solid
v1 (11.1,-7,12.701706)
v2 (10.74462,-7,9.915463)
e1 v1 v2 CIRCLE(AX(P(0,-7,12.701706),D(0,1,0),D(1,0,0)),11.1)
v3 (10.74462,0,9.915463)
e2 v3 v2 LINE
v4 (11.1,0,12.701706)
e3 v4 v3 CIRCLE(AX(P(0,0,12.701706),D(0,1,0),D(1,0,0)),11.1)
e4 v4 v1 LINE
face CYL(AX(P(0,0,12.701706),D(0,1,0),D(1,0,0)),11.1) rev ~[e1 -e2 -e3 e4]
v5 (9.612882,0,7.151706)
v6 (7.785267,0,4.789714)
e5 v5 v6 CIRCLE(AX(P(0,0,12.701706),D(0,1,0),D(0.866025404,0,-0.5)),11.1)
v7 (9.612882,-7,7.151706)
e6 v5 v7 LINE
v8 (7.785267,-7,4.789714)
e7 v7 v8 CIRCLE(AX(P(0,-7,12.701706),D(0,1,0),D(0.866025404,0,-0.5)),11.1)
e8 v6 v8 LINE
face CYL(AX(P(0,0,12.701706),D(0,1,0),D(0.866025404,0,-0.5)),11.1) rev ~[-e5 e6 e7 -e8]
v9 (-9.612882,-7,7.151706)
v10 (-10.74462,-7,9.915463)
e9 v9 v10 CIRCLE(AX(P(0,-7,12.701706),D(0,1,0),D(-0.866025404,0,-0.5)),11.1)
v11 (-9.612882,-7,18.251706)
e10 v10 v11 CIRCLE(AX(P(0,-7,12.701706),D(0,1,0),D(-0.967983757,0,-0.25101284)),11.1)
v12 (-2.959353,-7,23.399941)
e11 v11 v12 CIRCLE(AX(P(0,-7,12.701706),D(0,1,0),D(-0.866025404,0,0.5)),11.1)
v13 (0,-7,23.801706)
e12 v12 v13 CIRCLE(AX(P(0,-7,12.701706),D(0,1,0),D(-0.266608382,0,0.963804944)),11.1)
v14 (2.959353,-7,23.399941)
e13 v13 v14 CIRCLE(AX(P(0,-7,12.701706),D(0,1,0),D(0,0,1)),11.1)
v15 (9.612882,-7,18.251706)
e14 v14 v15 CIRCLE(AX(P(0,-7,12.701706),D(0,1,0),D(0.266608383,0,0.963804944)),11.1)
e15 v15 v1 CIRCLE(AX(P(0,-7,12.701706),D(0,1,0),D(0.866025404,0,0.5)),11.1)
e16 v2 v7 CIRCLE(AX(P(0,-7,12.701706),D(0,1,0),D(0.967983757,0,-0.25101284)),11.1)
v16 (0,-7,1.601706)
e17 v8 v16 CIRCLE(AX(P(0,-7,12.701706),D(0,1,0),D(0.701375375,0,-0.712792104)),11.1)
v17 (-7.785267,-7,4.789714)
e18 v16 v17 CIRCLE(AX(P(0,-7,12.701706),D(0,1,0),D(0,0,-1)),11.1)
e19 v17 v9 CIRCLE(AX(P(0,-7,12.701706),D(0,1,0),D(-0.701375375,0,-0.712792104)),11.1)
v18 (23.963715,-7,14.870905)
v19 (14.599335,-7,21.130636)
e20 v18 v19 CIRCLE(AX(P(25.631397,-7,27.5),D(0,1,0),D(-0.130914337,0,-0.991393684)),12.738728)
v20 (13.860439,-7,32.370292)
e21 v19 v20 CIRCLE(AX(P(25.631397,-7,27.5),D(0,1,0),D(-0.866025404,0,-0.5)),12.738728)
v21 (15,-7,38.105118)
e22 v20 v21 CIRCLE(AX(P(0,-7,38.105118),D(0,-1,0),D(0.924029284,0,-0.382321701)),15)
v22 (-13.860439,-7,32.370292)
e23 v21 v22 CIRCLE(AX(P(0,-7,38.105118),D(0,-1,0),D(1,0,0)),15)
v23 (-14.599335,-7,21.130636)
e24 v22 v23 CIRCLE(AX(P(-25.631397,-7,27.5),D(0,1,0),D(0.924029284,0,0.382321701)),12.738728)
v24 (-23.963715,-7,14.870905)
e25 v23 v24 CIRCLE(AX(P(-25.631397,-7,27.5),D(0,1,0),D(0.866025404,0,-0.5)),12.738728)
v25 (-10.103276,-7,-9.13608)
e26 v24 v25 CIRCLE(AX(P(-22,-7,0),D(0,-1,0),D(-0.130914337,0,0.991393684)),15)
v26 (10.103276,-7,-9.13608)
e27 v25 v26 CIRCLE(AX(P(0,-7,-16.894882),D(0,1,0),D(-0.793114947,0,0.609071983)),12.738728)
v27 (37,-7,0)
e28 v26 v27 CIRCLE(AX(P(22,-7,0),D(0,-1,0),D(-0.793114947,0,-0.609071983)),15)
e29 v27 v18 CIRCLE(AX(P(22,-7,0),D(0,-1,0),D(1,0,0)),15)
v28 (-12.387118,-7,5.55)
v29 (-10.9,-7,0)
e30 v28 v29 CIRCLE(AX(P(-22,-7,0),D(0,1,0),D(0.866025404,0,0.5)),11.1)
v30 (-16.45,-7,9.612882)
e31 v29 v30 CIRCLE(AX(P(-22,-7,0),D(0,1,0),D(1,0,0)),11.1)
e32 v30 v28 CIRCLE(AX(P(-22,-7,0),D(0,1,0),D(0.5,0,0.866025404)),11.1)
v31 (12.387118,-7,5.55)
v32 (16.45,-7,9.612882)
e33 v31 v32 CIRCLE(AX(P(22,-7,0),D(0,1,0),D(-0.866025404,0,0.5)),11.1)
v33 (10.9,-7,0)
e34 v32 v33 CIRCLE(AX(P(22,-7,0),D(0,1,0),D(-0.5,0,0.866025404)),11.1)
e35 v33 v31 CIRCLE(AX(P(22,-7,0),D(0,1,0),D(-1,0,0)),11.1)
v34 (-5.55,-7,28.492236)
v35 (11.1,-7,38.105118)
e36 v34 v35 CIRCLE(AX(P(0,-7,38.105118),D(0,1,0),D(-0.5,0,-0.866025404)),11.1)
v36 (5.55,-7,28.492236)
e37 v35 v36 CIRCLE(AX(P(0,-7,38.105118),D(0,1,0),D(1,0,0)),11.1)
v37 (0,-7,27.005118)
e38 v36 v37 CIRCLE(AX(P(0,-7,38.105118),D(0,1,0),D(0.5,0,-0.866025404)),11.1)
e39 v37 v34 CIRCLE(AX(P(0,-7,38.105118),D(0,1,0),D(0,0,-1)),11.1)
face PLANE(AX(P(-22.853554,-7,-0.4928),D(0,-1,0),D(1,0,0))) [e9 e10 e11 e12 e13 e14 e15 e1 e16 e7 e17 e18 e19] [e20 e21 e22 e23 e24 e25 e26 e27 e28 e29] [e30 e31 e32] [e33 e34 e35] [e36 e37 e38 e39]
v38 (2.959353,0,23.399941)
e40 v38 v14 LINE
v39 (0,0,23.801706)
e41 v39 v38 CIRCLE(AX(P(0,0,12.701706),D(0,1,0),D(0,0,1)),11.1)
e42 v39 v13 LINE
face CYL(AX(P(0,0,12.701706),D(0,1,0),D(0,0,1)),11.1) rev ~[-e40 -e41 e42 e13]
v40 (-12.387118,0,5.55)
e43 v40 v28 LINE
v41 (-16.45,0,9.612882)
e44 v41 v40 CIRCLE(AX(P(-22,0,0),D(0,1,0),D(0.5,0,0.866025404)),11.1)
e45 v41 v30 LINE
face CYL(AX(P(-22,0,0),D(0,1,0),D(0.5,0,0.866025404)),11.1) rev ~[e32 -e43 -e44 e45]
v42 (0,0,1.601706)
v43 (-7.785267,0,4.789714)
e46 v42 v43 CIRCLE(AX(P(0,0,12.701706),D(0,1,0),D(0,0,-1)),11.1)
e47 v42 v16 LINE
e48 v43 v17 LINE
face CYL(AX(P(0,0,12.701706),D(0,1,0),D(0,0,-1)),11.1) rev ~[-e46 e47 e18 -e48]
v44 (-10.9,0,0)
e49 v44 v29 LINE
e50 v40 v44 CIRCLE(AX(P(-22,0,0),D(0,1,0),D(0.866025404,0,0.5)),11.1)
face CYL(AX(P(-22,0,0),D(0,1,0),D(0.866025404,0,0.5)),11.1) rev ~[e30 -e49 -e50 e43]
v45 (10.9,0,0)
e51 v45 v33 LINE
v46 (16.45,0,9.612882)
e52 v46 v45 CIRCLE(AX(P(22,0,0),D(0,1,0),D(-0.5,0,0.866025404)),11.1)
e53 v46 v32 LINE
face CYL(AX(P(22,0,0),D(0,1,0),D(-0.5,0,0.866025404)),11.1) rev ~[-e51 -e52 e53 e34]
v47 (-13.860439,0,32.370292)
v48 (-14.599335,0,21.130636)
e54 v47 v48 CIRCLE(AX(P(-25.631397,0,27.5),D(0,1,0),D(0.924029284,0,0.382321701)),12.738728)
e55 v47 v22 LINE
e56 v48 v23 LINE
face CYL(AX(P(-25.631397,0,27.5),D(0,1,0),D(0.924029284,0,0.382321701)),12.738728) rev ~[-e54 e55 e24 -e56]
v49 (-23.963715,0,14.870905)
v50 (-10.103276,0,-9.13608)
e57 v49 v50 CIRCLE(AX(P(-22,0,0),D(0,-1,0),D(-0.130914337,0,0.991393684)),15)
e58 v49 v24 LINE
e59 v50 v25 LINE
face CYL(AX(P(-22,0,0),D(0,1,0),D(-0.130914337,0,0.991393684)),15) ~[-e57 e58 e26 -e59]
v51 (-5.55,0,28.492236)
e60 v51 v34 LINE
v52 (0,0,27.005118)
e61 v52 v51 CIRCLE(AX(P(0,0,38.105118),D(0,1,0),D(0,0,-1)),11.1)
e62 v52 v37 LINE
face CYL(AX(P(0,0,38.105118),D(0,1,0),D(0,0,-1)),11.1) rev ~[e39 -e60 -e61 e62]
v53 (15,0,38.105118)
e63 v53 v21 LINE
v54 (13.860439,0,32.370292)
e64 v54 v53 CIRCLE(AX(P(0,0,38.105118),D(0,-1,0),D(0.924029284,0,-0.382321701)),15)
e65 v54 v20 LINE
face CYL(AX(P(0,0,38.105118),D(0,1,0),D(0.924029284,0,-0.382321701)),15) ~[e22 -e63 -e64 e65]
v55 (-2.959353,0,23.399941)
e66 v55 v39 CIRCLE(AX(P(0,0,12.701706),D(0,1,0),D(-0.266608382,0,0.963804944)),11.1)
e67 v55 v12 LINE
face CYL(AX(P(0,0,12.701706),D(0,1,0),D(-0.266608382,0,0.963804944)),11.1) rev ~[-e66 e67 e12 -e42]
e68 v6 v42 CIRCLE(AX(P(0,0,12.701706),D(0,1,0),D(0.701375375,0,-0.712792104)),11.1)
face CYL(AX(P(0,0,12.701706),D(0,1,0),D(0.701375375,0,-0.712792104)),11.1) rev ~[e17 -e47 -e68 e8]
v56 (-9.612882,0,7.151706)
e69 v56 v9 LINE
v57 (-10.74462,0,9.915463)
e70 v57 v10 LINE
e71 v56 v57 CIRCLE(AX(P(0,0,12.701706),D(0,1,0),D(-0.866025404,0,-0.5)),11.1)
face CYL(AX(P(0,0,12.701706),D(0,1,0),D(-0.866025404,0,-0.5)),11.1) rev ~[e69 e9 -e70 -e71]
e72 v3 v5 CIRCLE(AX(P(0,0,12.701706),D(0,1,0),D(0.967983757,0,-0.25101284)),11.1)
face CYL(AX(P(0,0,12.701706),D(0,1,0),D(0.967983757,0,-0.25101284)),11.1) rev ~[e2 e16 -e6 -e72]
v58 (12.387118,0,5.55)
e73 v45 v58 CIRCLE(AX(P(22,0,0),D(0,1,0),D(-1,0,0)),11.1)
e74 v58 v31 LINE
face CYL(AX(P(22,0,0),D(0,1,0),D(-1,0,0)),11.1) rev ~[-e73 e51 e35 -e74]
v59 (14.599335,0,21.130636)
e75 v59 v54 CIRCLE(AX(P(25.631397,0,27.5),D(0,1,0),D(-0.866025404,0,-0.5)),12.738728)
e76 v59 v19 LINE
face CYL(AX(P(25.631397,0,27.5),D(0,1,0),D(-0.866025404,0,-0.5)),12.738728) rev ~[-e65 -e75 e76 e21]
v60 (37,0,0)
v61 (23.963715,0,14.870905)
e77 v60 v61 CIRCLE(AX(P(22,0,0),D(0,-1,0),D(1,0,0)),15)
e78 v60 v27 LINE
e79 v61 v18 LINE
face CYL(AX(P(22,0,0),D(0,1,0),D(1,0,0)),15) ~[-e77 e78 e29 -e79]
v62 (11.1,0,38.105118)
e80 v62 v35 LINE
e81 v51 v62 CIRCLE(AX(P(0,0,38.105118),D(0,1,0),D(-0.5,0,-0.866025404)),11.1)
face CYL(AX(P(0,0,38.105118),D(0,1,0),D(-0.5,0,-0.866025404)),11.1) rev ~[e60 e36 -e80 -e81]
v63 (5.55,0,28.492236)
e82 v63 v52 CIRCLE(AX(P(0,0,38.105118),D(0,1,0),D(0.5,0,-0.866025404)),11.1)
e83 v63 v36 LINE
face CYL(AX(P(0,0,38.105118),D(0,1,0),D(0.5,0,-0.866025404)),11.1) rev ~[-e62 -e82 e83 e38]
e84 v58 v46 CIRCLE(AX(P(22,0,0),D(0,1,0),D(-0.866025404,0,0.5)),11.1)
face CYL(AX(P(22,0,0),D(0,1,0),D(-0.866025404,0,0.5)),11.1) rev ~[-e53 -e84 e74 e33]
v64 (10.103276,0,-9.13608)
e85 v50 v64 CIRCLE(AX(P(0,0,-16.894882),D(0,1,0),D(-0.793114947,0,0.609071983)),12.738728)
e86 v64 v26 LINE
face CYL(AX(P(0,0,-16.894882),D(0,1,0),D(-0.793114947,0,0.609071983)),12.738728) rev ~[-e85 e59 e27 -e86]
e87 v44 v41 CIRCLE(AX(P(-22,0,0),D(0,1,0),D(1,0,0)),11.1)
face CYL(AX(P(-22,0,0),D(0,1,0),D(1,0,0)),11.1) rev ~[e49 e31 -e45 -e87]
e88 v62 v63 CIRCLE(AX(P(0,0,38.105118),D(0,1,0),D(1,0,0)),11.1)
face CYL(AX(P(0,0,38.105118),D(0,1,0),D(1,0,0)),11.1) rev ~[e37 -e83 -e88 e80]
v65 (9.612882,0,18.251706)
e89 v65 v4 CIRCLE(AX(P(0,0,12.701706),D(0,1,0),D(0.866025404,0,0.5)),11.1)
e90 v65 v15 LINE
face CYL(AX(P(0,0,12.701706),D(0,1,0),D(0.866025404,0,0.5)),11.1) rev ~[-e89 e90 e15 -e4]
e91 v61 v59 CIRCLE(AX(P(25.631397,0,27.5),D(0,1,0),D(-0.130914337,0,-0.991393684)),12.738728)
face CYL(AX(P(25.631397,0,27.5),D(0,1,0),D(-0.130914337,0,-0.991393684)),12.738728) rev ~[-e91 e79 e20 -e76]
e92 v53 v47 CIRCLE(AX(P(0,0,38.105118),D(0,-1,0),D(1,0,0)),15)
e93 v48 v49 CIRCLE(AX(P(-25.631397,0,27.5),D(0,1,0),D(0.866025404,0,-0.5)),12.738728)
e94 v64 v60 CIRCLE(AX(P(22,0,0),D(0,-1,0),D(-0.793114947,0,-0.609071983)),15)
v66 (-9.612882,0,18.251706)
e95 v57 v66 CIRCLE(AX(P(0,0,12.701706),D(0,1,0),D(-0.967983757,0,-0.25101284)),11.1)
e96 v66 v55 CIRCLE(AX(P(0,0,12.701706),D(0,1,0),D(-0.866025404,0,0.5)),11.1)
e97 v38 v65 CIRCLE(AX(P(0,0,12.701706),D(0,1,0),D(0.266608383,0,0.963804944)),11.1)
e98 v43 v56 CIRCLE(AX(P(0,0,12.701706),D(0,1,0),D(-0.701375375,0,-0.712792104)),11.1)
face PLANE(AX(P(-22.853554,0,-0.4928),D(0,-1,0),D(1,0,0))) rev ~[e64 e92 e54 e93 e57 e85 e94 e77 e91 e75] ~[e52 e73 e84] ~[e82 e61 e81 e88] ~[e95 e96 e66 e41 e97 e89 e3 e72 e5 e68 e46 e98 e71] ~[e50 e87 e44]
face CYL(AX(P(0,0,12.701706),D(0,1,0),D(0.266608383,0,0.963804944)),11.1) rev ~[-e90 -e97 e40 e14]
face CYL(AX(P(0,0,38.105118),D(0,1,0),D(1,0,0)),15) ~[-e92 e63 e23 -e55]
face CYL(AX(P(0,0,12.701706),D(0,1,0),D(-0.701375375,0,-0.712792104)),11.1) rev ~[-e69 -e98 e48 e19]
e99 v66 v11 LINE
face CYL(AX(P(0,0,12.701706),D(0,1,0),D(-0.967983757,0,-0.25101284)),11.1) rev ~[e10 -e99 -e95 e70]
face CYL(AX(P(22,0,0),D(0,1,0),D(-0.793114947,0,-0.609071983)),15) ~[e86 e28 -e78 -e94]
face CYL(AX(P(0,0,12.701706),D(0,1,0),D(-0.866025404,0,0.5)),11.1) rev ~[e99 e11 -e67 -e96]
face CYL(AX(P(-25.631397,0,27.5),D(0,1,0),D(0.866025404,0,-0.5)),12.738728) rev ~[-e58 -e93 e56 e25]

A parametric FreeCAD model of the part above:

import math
import FreeCAD as App
import Part
import Sketcher

V = App.Vector

doc = App.newDocument("Part")
body = doc.addObject("PartDesign::Body", "Body")

sketch1 = body.newObject("Sketcher::SketchObject", "Sketch")
sketch1.AttachmentSupport = (doc.getObject("XZ_Plane"), [""])
sketch1.MapMode = "FlatFace"
sketch1.addGeometry(Part.ArcOfCircle(Part.Circle(V(0, 38.1, 0), V(0, 0, 1), 15), math.radians(-22), math.radians(0)), False)
sketch1.addGeometry(Part.ArcOfCircle(Part.Circle(V(0, 38.1, 0), V(0, 0, 1), 15), math.radians(0), math.radians(202)), False)
sketch1.addGeometry(Part.ArcOfCircle(Part.Circle(V(-25.6, 27.5, 0), V(0, 0, 1), 12.7), math.radians(-30), math.radians(22)), False)
sketch1.addGeometry(Part.ArcOfCircle(Part.Circle(V(-25.6, 27.5, 0), V(0, 0, 1), 12.7), math.radians(-82), math.radians(-30)), False)
sketch1.addGeometry(Part.ArcOfCircle(Part.Circle(V(-22, 0, 0), V(0, 0, 1), 15), math.radians(98), math.radians(322)), False)
sketch1.addGeometry(Part.ArcOfCircle(Part.Circle(V(0, -16.9, 0), V(0, 0, 1), 12.7), math.radians(38), math.radians(142)), False)
sketch1.addGeometry(Part.ArcOfCircle(Part.Circle(V(22, 0, 0), V(0, 0, 1), 15), math.radians(-142), math.radians(0)), False)
sketch1.addGeometry(Part.ArcOfCircle(Part.Circle(V(22, 0, 0), V(0, 0, 1), 15), math.radians(0), math.radians(82)), False)
sketch1.addGeometry(Part.ArcOfCircle(Part.Circle(V(25.6, 27.5, 0), V(0, 0, 1), 12.7), math.radians(-150), math.radians(-98)), False)
sketch1.addGeometry(Part.ArcOfCircle(Part.Circle(V(25.6, 27.5, 0), V(0, 0, 1), 12.7), math.radians(158), math.radians(210)), False)
sketch1.addGeometry(Part.ArcOfCircle(Part.Circle(V(-22, 0, 0), V(0, 0, 1), 11.1), math.radians(60), math.radians(360)), False)
sketch1.addGeometry(Part.ArcOfCircle(Part.Circle(V(-22, 0, 0), V(0, 0, 1), 11.1), math.radians(30), math.radians(60)), False)
sketch1.addGeometry(Part.ArcOfCircle(Part.Circle(V(-22, 0, 0), V(0, 0, 1), 11.1), math.radians(0), math.radians(30)), False)
sketch1.addGeometry(Part.ArcOfCircle(Part.Circle(V(0, 12.7, 0), V(0, 0, 1), 11.1), math.radians(-165.46), math.radians(-150)), False)
sketch1.addGeometry(Part.ArcOfCircle(Part.Circle(V(0, 12.7, 0), V(0, 0, 1), 11.1), math.radians(150), math.radians(195)), False)
sketch1.addGeometry(Part.ArcOfCircle(Part.Circle(V(0, 12.7, 0), V(0, 0, 1), 11.1), math.radians(105), math.radians(150)), False)
sketch1.addGeometry(Part.ArcOfCircle(Part.Circle(V(0, 12.7, 0), V(0, 0, 1), 11.1), math.radians(90), math.radians(105.46)), False)
sketch1.addGeometry(Part.ArcOfCircle(Part.Circle(V(0, 12.7, 0), V(0, 0, 1), 11.1), math.radians(74.54), math.radians(90)), False)
sketch1.addGeometry(Part.ArcOfCircle(Part.Circle(V(0, 12.7, 0), V(0, 0, 1), 11.1), math.radians(30), math.radians(75)), False)
sketch1.addGeometry(Part.ArcOfCircle(Part.Circle(V(0, 12.7, 0), V(0, 0, 1), 11.1), math.radians(0), math.radians(30)), False)
sketch1.addGeometry(Part.ArcOfCircle(Part.Circle(V(0, 12.7, 0), V(0, 0, 1), 11.1), math.radians(-14.54), math.radians(0)), False)
sketch1.addGeometry(Part.ArcOfCircle(Part.Circle(V(0, 12.7, 0), V(0, 0, 1), 11.1), math.radians(-30), math.radians(-14.54)), False)
sketch1.addGeometry(Part.ArcOfCircle(Part.Circle(V(0, 12.7, 0), V(0, 0, 1), 11.1), math.radians(-45.46), math.radians(-30)), False)
sketch1.addGeometry(Part.ArcOfCircle(Part.Circle(V(0, 12.7, 0), V(0, 0, 1), 11.1), math.radians(-90), math.radians(-45)), False)
sketch1.addGeometry(Part.ArcOfCircle(Part.Circle(V(0, 12.7, 0), V(0, 0, 1), 11.1), math.radians(-135), math.radians(-90)), False)
sketch1.addGeometry(Part.ArcOfCircle(Part.Circle(V(0, 12.7, 0), V(0, 0, 1), 11.1), math.radians(-150), math.radians(-134.54)), False)
sketch1.addGeometry(Part.ArcOfCircle(Part.Circle(V(0, 38.1, 0), V(0, 0, 1), 11.1), math.radians(0), math.radians(240)), False)
sketch1.addGeometry(Part.ArcOfCircle(Part.Circle(V(0, 38.1, 0), V(0, 0, 1), 11.1), math.radians(-60), math.radians(0)), False)
sketch1.addGeometry(Part.ArcOfCircle(Part.Circle(V(0, 38.1, 0), V(0, 0, 1), 11.1), math.radians(-90), math.radians(-60)), False)
sketch1.addGeometry(Part.ArcOfCircle(Part.Circle(V(0, 38.1, 0), V(0, 0, 1), 11.1), math.radians(-120), math.radians(-90)), False)
sketch1.addGeometry(Part.ArcOfCircle(Part.Circle(V(22, 0, 0), V(0, 0, 1), 11.1), math.radians(120), math.radians(150)), False)
sketch1.addGeometry(Part.ArcOfCircle(Part.Circle(V(22, 0, 0), V(0, 0, 1), 11.1), math.radians(180), math.radians(480)), False)
sketch1.addGeometry(Part.ArcOfCircle(Part.Circle(V(22, 0, 0), V(0, 0, 1), 11.1), math.radians(150), math.radians(180)), False)
sketch1.addConstraint(Sketcher.Constraint("Tangent", 0, 2, 1, 1))
sketch1.addConstraint(Sketcher.Constraint("Tangent", 1, 2, 2, 2))
sketch1.addConstraint(Sketcher.Constraint("Tangent", 2, 1, 3, 2))
sketch1.addConstraint(Sketcher.Constraint("Tangent", 3, 1, 4, 1))
sketch1.addConstraint(Sketcher.Constraint("Tangent", 4, 2, 5, 2))
sketch1.addConstraint(Sketcher.Constraint("Tangent", 5, 1, 6, 1))
sketch1.addConstraint(Sketcher.Constraint("Tangent", 6, 2, 7, 1))
sketch1.addConstraint(Sketcher.Constraint("Tangent", 7, 2, 8, 2))
sketch1.addConstraint(Sketcher.Constraint("Tangent", 8, 1, 9, 2))
sketch1.addConstraint(Sketcher.Constraint("Tangent", 9, 1, 0, 1))
sketch1.addConstraint(Sketcher.Constraint("Tangent", 10, 1, 11, 2))
sketch1.addConstraint(Sketcher.Constraint("Tangent", 11, 1, 12, 2))
sketch1.addConstraint(Sketcher.Constraint("Tangent", 12, 1, 10, 2))
sketch1.addConstraint(Sketcher.Constraint("Tangent", 13, 1, 14, 2))
sketch1.addConstraint(Sketcher.Constraint("Tangent", 14, 1, 15, 2))
sketch1.addConstraint(Sketcher.Constraint("Tangent", 15, 1, 16, 2))
sketch1.addConstraint(Sketcher.Constraint("Tangent", 16, 1, 17, 2))
sketch1.addConstraint(Sketcher.Constraint("Tangent", 17, 1, 18, 2))
sketch1.addConstraint(Sketcher.Constraint("Tangent", 18, 1, 19, 2))
sketch1.addConstraint(Sketcher.Constraint("Tangent", 19, 1, 20, 2))
sketch1.addConstraint(Sketcher.Constraint("Tangent", 20, 1, 21, 2))
sketch1.addConstraint(Sketcher.Constraint("Tangent", 21, 1, 22, 2))
sketch1.addConstraint(Sketcher.Constraint("Tangent", 22, 1, 23, 2))
sketch1.addConstraint(Sketcher.Constraint("Tangent", 23, 1, 24, 2))
sketch1.addConstraint(Sketcher.Constraint("Tangent", 24, 1, 25, 2))
sketch1.addConstraint(Sketcher.Constraint("Tangent", 25, 1, 13, 2))
sketch1.addConstraint(Sketcher.Constraint("Tangent", 26, 1, 27, 2))
sketch1.addConstraint(Sketcher.Constraint("Tangent", 27, 1, 28, 2))
sketch1.addConstraint(Sketcher.Constraint("Tangent", 28, 1, 29, 2))
sketch1.addConstraint(Sketcher.Constraint("Tangent", 29, 1, 26, 2))
sketch1.addConstraint(Sketcher.Constraint("Tangent", 30, 1, 31, 2))
sketch1.addConstraint(Sketcher.Constraint("Tangent", 31, 1, 32, 2))
sketch1.addConstraint(Sketcher.Constraint("Tangent", 32, 1, 30, 2))
sketch1.addConstraint(Sketcher.Constraint("Coincident", 10, 3, 4, 3))
sketch1.addConstraint(Sketcher.Constraint("Coincident", 15, 3, 13, 3))
sketch1.addConstraint(Sketcher.Constraint("Coincident", 17, 3, 13, 3))
sketch1.addConstraint(Sketcher.Constraint("Coincident", 19, 3, 13, 3))
sketch1.addConstraint(Sketcher.Constraint("Coincident", 21, 3, 13, 3))
sketch1.addConstraint(Sketcher.Constraint("Coincident", 23, 3, 13, 3))
sketch1.addConstraint(Sketcher.Constraint("Coincident", 26, 3, 0, 3))
sketch1.addConstraint(Sketcher.Constraint("Coincident", 30, 3, 6, 3))
sketch1.addConstraint(Sketcher.Constraint("Equal", 0, 1))
sketch1.addConstraint(Sketcher.Constraint("Equal", 2, 3))
sketch1.addConstraint(Sketcher.Constraint("Equal", 1, 4))
sketch1.addConstraint(Sketcher.Constraint("Equal", 3, 5))
sketch1.addConstraint(Sketcher.Constraint("Equal", 4, 6))
sketch1.addConstraint(Sketcher.Constraint("Equal", 6, 7))
sketch1.addConstraint(Sketcher.Constraint("Equal", 5, 8))
sketch1.addConstraint(Sketcher.Constraint("Equal", 8, 9))
sketch1.addConstraint(Sketcher.Constraint("Equal", 12, 13))
sketch1.addConstraint(Sketcher.Constraint("Equal", 25, 26))
sketch1.addConstraint(Sketcher.Constraint("Equal", 26, 27))
sketch1.addConstraint(Sketcher.Constraint("Equal", 29, 30))
sketch1.addConstraint(Sketcher.Constraint("Symmetric", 4, 3, 6, 3, -1, 1))
sketch1.addConstraint(Sketcher.Constraint("Symmetric", 2, 3, 8, 3, -2))
sketch1.addConstraint(Sketcher.Constraint("Symmetric", 15, 1, 17, 1, -2))
sketch1.addConstraint(Sketcher.Constraint("PointOnObject", 6, 2, -1))
sketch1.addConstraint(Sketcher.Constraint("PointOnObject", 12, 1, -1))
sketch1.addConstraint(Sketcher.Constraint("PointOnObject", 16, 1, -2))
sketch1.addConstraint(Sketcher.Constraint("PointOnObject", 23, 1, -2))
sketch1.addConstraint(Sketcher.Constraint("PointOnObject", 28, 1, -2))
sketch1.addConstraint(Sketcher.Constraint("PointOnObject", 31, 1, -1))
sketch1.addConstraint(Sketcher.Constraint("Horizontal", 29, 3, 0, 2))
sketch1.addConstraint(Sketcher.Constraint("Horizontal", 2, 1, 8, 1))
sketch1.addConstraint(Sketcher.Constraint("Horizontal", 14, 1, 18, 1))
sketch1.addConstraint(Sketcher.Constraint("Horizontal", 25, 3, 19, 1))
sketch1.addConstraint(Sketcher.Constraint("Horizontal", 13, 1, 20, 1))
sketch1.addConstraint(Sketcher.Constraint("Horizontal", 22, 1, 24, 1))
sketch1.addConstraint(Sketcher.Constraint("Horizontal", 21, 1, 25, 1))
sketch1.addConstraint(Sketcher.Constraint("Horizontal", 0, 2, 26, 1))
sketch1.addConstraint(Sketcher.Constraint("Horizontal", 27, 1, 29, 1))
sketch1.addConstraint(Sketcher.Constraint("Horizontal", 10, 1, 30, 1))
sketch1.addConstraint(Sketcher.Constraint("Horizontal", 11, 1, 32, 1))
sketch1.addConstraint(Sketcher.Constraint("Vertical", 18, 1, 21, 1))
sketch1.addConstraint(Sketcher.Constraint("Radius", 0, 15.0))
sketch1.addConstraint(Sketcher.Constraint("Radius", 10, 11.1))
sketch1.addConstraint(Sketcher.Constraint("DistanceX", 4, 3, -1, 1, 22.0))
sketch1.addConstraint(Sketcher.Constraint("DistanceY", -1, 1, 2, 3, 27.5))
sketch1.addConstraint(Sketcher.Constraint("DistanceX", 10, 1, -1, 1, 16.45))
sketch1.addConstraint(Sketcher.Constraint("DistanceY", -1, 1, 11, 1, 5.55))
sketch1.addConstraint(Sketcher.Constraint("DistanceX", -1, 1, 27, 1, 5.55))
sketch1.addConstraint(Sketcher.Constraint("Radius", 2, 12.738728))
sketch1.addConstraint(Sketcher.Constraint("DistanceX", 13, 1, -1, 1, 10.74462))
sketch1.addConstraint(Sketcher.Constraint("DistanceX", 14, 1, -1, 1, 9.612882))
sketch1.addConstraint(Sketcher.Constraint("DistanceY", -1, 1, 15, 1, 23.399941))
sketch1.addConstraint(Sketcher.Constraint("DistanceY", -1, 1, 13, 3, 12.701706))
sketch1.addConstraint(Sketcher.Constraint("DistanceX", 2, 1, -1, 1, 14.599335))
sketch1.addConstraint(Sketcher.Constraint("DistanceX", -1, 1, 22, 1, 7.785267))
pad1 = body.newObject("PartDesign::Pad", "Pad")
pad1.Profile = sketch1
pad1.Length = 7

doc.recompute()
